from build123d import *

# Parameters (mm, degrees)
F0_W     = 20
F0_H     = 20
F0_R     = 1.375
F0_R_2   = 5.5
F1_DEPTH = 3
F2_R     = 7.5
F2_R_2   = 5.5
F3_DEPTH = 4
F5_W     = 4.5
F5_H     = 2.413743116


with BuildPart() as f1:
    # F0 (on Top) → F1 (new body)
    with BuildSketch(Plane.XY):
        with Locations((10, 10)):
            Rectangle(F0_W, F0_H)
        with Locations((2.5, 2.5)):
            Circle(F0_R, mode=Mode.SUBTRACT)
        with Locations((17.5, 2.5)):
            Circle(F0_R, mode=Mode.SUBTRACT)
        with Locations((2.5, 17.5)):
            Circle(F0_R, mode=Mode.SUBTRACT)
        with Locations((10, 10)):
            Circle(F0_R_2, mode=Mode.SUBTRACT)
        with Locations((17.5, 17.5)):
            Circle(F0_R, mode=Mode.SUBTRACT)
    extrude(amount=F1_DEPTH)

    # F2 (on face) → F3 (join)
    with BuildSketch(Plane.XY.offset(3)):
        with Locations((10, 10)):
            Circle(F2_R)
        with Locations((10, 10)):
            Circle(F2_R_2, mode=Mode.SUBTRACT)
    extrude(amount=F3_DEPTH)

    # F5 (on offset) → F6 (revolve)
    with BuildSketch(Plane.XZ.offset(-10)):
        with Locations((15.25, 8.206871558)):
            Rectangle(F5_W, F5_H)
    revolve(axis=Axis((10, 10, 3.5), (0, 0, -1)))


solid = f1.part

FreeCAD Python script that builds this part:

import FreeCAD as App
import Part
import Sketcher
from FreeCAD import Vector
Q = App.Units.Quantity

doc = App.newDocument("Part")
body = doc.addObject("PartDesign::Body", "Body")

# Sketch on XY plane
sketch1 = doc.addObject("Sketcher::SketchObject", "Sketch")
body.addObject(sketch1)
sketch1.AttachmentSupport = (doc.XY_Plane, [""])
sketch1.MapMode = "FlatFace"
sketch1.addGeometry(Part.LineSegment(Vector(0, 20, 0), Vector(0, 0, 0)), False)
sketch1.addGeometry(Part.LineSegment(Vector(0, 0, 0), Vector(20, 0, 0)), False)
sketch1.addGeometry(Part.LineSegment(Vector(20, 0, 0), Vector(20, 20, 0)), False)
sketch1.addGeometry(Part.LineSegment(Vector(20, 20, 0), Vector(0, 20, 0)), False)
sketch1.addGeometry(Part.Circle(Vector(2.5, 2.5, 0), Vector(0, 0, 1), 1.4), False)
sketch1.addGeometry(Part.Circle(Vector(17.5, 2.5, 0), Vector(0, 0, 1), 1.4), False)
sketch1.addGeometry(Part.Circle(Vector(2.5, 17.5, 0), Vector(0, 0, 1), 1.4), False)
sketch1.addGeometry(Part.Circle(Vector(10, 10, 0), Vector(0, 0, 1), 5.5), False)
sketch1.addGeometry(Part.Circle(Vector(17.5, 17.5, 0), Vector(0, 0, 1), 1.4), False)
sketch1.addConstraint(Sketcher.Constraint("Coincident", 0, 2, 1, 1))
sketch1.addConstraint(Sketcher.Constraint("Coincident", 1, 2, 2, 1))
sketch1.addConstraint(Sketcher.Constraint("Coincident", 2, 2, 3, 1))
sketch1.addConstraint(Sketcher.Constraint("Coincident", 3, 2, 0, 1))
sketch1.addConstraint(Sketcher.Constraint("Vertical", 0))
sketch1.addConstraint(Sketcher.Constraint("Horizontal", 1))
sketch1.addConstraint(Sketcher.Constraint("Vertical", 2))
sketch1.addConstraint(Sketcher.Constraint("Horizontal", 3))
sketch1.addConstraint(Sketcher.Constraint("Coincident", 0, 2, -1, 1))
sketch1.addConstraint(Sketcher.Constraint("Equal", 4, 5))
sketch1.addConstraint(Sketcher.Constraint("Equal", 5, 6))
sketch1.addConstraint(Sketcher.Constraint("Equal", 6, 8))
sketch1.addConstraint(Sketcher.Constraint("Horizontal", 4, 3, 5, 3))
sketch1.addConstraint(Sketcher.Constraint("Horizontal", 6, 3, 8, 3))
sketch1.addConstraint(Sketcher.Constraint("Vertical", 4, 3, 6, 3))
sketch1.addConstraint(Sketcher.Constraint("Vertical", 5, 3, 8, 3))
sketch1.addConstraint(Sketcher.Constraint("Equal", 3, 0))
sketch1.addConstraint(Sketcher.Constraint("Diameter", 7, Q("11 mm")))
sketch1.addConstraint(Sketcher.Constraint("Diameter", 4, Q("2.75 mm")))
sketch1.addConstraint(Sketcher.Constraint("DistanceX", 1, 1, 1, 2, Q("20 mm")))
sketch1.addConstraint(Sketcher.Constraint("DistanceX", -1, 1, 7, 3, Q("10 mm")))
sketch1.addConstraint(Sketcher.Constraint("DistanceY", -1, 1, 7, 3, Q("10 mm")))
sketch1.addConstraint(Sketcher.Constraint("DistanceX", 4, 3, 5, 3, Q("15 mm")))
sketch1.addConstraint(Sketcher.Constraint("DistanceY", 4, 3, 6, 3, Q("15 mm")))
sketch1.addConstraint(Sketcher.Constraint("DistanceX", -1, 1, 4, 3, Q("2.5 mm")))
sketch1.addConstraint(Sketcher.Constraint("DistanceY", -1, 1, 4, 3, Q("2.5 mm")))
pad1 = doc.addObject("PartDesign::Pad", "Pad")
body.addObject(pad1)
pad1.Profile = sketch1
pad1.Length = 3

# Sketch on XY plane
sketch2 = doc.addObject("Sketcher::SketchObject", "Sketch001")
body.addObject(sketch2)
sketch2.AttachmentSupport = (doc.XY_Plane, [""])
sketch2.MapMode = "FlatFace"
sketch2.AttachmentOffset = App.Placement(Vector(0, 0, 3), App.Rotation())
sketch2.addGeometry(Part.Circle(Vector(10, 10, 0), Vector(0, 0, 1), 8), False)
sketch2.addGeometry(Part.Circle(Vector(10, 10, 0), Vector(0, 0, 1), 6), False)
sketch2.addConstraint(Sketcher.Constraint("Coincident", 1, 3, 0, 3))
sketch2.addConstraint(Sketcher.Constraint("Diameter", 0, Q("15 mm")))
sketch2.addConstraint(Sketcher.Constraint("Diameter", 1, Q("11 mm")))
sketch2.addConstraint(Sketcher.Constraint("DistanceX", -1, 1, 0, 3, Q("10 mm")))
sketch2.addConstraint(Sketcher.Constraint("DistanceY", -1, 1, 0, 3, Q("10 mm")))
pad2 = doc.addObject("PartDesign::Pad", "Pad001")
body.addObject(pad2)
pad2.Profile = sketch2
pad2.Length = 4

# Sketch on XZ plane
sketch3 = doc.addObject("Sketcher::SketchObject", "Sketch002")
body.addObject(sketch3)
sketch3.AttachmentSupport = (doc.XZ_Plane, [""])
sketch3.MapMode = "FlatFace"
sketch3.AttachmentOffset = App.Placement(Vector(0, 0, -10), App.Rotation())
sketch3.addGeometry(Part.LineSegment(Vector(13, 9.4, 0), Vector(13, 7, 0)), False)
sketch3.addGeometry(Part.LineSegment(Vector(13, 7, 0), Vector(17.5, 7, 0)), False)
sketch3.addGeometry(Part.LineSegment(Vector(17.5, 7, 0), Vector(17.5, 9.4, 0)), False)
sketch3.addGeometry(Part.LineSegment(Vector(17.5, 9.4, 0), Vector(13, 9.4, 0)), False)
sketch3.addGeometry(Part.LineSegment(Vector(10, 9.4, 0), Vector(10, 7, 0)), True)  # axis
sketch3.addConstraint(Sketcher.Constraint("Coincident", 0, 2, 1, 1))
sketch3.addConstraint(Sketcher.Constraint("Coincident", 1, 2, 2, 1))
sketch3.addConstraint(Sketcher.Constraint("Coincident", 2, 2, 3, 1))
sketch3.addConstraint(Sketcher.Constraint("Coincident", 3, 2, 0, 1))
sketch3.addConstraint(Sketcher.Constraint("Vertical", 0))
sketch3.addConstraint(Sketcher.Constraint("Horizontal", 1))
sketch3.addConstraint(Sketcher.Constraint("Vertical", 2))
sketch3.addConstraint(Sketcher.Constraint("Horizontal", 3))
sketch3.addConstraint(Sketcher.Constraint("Vertical", 4))
sketch3.addConstraint(Sketcher.Constraint("Horizontal", 3, 2, 4, 1))
sketch3.addConstraint(Sketcher.Constraint("Horizontal", 1, 2, 4, 2))
sketch3.addConstraint(Sketcher.Constraint("DistanceX", 1, 1, 1, 2, Q("4.5 mm")))
sketch3.addConstraint(Sketcher.Constraint("DistanceX", -1, 1, 0, 2, Q("13 mm")))
sketch3.addConstraint(Sketcher.Constraint("DistanceY", -1, 1, 0, 2, Q("7 mm")))
sketch3.addConstraint(Sketcher.Constraint("DistanceX", -1, 1, 4, 1, Q("10 mm")))
sketch3.addConstraint(Sketcher.Constraint("DistanceY", 0, 2, 0, 1, Q("2.413743 mm")))
revolution = doc.addObject("PartDesign::Revolution", "Revolution")
body.addObject(revolution)
revolution.Profile = sketch3
revolution.ReferenceAxis = (sketch3, ["Axis0"])
revolution.Angle = 360

doc.recompute()
